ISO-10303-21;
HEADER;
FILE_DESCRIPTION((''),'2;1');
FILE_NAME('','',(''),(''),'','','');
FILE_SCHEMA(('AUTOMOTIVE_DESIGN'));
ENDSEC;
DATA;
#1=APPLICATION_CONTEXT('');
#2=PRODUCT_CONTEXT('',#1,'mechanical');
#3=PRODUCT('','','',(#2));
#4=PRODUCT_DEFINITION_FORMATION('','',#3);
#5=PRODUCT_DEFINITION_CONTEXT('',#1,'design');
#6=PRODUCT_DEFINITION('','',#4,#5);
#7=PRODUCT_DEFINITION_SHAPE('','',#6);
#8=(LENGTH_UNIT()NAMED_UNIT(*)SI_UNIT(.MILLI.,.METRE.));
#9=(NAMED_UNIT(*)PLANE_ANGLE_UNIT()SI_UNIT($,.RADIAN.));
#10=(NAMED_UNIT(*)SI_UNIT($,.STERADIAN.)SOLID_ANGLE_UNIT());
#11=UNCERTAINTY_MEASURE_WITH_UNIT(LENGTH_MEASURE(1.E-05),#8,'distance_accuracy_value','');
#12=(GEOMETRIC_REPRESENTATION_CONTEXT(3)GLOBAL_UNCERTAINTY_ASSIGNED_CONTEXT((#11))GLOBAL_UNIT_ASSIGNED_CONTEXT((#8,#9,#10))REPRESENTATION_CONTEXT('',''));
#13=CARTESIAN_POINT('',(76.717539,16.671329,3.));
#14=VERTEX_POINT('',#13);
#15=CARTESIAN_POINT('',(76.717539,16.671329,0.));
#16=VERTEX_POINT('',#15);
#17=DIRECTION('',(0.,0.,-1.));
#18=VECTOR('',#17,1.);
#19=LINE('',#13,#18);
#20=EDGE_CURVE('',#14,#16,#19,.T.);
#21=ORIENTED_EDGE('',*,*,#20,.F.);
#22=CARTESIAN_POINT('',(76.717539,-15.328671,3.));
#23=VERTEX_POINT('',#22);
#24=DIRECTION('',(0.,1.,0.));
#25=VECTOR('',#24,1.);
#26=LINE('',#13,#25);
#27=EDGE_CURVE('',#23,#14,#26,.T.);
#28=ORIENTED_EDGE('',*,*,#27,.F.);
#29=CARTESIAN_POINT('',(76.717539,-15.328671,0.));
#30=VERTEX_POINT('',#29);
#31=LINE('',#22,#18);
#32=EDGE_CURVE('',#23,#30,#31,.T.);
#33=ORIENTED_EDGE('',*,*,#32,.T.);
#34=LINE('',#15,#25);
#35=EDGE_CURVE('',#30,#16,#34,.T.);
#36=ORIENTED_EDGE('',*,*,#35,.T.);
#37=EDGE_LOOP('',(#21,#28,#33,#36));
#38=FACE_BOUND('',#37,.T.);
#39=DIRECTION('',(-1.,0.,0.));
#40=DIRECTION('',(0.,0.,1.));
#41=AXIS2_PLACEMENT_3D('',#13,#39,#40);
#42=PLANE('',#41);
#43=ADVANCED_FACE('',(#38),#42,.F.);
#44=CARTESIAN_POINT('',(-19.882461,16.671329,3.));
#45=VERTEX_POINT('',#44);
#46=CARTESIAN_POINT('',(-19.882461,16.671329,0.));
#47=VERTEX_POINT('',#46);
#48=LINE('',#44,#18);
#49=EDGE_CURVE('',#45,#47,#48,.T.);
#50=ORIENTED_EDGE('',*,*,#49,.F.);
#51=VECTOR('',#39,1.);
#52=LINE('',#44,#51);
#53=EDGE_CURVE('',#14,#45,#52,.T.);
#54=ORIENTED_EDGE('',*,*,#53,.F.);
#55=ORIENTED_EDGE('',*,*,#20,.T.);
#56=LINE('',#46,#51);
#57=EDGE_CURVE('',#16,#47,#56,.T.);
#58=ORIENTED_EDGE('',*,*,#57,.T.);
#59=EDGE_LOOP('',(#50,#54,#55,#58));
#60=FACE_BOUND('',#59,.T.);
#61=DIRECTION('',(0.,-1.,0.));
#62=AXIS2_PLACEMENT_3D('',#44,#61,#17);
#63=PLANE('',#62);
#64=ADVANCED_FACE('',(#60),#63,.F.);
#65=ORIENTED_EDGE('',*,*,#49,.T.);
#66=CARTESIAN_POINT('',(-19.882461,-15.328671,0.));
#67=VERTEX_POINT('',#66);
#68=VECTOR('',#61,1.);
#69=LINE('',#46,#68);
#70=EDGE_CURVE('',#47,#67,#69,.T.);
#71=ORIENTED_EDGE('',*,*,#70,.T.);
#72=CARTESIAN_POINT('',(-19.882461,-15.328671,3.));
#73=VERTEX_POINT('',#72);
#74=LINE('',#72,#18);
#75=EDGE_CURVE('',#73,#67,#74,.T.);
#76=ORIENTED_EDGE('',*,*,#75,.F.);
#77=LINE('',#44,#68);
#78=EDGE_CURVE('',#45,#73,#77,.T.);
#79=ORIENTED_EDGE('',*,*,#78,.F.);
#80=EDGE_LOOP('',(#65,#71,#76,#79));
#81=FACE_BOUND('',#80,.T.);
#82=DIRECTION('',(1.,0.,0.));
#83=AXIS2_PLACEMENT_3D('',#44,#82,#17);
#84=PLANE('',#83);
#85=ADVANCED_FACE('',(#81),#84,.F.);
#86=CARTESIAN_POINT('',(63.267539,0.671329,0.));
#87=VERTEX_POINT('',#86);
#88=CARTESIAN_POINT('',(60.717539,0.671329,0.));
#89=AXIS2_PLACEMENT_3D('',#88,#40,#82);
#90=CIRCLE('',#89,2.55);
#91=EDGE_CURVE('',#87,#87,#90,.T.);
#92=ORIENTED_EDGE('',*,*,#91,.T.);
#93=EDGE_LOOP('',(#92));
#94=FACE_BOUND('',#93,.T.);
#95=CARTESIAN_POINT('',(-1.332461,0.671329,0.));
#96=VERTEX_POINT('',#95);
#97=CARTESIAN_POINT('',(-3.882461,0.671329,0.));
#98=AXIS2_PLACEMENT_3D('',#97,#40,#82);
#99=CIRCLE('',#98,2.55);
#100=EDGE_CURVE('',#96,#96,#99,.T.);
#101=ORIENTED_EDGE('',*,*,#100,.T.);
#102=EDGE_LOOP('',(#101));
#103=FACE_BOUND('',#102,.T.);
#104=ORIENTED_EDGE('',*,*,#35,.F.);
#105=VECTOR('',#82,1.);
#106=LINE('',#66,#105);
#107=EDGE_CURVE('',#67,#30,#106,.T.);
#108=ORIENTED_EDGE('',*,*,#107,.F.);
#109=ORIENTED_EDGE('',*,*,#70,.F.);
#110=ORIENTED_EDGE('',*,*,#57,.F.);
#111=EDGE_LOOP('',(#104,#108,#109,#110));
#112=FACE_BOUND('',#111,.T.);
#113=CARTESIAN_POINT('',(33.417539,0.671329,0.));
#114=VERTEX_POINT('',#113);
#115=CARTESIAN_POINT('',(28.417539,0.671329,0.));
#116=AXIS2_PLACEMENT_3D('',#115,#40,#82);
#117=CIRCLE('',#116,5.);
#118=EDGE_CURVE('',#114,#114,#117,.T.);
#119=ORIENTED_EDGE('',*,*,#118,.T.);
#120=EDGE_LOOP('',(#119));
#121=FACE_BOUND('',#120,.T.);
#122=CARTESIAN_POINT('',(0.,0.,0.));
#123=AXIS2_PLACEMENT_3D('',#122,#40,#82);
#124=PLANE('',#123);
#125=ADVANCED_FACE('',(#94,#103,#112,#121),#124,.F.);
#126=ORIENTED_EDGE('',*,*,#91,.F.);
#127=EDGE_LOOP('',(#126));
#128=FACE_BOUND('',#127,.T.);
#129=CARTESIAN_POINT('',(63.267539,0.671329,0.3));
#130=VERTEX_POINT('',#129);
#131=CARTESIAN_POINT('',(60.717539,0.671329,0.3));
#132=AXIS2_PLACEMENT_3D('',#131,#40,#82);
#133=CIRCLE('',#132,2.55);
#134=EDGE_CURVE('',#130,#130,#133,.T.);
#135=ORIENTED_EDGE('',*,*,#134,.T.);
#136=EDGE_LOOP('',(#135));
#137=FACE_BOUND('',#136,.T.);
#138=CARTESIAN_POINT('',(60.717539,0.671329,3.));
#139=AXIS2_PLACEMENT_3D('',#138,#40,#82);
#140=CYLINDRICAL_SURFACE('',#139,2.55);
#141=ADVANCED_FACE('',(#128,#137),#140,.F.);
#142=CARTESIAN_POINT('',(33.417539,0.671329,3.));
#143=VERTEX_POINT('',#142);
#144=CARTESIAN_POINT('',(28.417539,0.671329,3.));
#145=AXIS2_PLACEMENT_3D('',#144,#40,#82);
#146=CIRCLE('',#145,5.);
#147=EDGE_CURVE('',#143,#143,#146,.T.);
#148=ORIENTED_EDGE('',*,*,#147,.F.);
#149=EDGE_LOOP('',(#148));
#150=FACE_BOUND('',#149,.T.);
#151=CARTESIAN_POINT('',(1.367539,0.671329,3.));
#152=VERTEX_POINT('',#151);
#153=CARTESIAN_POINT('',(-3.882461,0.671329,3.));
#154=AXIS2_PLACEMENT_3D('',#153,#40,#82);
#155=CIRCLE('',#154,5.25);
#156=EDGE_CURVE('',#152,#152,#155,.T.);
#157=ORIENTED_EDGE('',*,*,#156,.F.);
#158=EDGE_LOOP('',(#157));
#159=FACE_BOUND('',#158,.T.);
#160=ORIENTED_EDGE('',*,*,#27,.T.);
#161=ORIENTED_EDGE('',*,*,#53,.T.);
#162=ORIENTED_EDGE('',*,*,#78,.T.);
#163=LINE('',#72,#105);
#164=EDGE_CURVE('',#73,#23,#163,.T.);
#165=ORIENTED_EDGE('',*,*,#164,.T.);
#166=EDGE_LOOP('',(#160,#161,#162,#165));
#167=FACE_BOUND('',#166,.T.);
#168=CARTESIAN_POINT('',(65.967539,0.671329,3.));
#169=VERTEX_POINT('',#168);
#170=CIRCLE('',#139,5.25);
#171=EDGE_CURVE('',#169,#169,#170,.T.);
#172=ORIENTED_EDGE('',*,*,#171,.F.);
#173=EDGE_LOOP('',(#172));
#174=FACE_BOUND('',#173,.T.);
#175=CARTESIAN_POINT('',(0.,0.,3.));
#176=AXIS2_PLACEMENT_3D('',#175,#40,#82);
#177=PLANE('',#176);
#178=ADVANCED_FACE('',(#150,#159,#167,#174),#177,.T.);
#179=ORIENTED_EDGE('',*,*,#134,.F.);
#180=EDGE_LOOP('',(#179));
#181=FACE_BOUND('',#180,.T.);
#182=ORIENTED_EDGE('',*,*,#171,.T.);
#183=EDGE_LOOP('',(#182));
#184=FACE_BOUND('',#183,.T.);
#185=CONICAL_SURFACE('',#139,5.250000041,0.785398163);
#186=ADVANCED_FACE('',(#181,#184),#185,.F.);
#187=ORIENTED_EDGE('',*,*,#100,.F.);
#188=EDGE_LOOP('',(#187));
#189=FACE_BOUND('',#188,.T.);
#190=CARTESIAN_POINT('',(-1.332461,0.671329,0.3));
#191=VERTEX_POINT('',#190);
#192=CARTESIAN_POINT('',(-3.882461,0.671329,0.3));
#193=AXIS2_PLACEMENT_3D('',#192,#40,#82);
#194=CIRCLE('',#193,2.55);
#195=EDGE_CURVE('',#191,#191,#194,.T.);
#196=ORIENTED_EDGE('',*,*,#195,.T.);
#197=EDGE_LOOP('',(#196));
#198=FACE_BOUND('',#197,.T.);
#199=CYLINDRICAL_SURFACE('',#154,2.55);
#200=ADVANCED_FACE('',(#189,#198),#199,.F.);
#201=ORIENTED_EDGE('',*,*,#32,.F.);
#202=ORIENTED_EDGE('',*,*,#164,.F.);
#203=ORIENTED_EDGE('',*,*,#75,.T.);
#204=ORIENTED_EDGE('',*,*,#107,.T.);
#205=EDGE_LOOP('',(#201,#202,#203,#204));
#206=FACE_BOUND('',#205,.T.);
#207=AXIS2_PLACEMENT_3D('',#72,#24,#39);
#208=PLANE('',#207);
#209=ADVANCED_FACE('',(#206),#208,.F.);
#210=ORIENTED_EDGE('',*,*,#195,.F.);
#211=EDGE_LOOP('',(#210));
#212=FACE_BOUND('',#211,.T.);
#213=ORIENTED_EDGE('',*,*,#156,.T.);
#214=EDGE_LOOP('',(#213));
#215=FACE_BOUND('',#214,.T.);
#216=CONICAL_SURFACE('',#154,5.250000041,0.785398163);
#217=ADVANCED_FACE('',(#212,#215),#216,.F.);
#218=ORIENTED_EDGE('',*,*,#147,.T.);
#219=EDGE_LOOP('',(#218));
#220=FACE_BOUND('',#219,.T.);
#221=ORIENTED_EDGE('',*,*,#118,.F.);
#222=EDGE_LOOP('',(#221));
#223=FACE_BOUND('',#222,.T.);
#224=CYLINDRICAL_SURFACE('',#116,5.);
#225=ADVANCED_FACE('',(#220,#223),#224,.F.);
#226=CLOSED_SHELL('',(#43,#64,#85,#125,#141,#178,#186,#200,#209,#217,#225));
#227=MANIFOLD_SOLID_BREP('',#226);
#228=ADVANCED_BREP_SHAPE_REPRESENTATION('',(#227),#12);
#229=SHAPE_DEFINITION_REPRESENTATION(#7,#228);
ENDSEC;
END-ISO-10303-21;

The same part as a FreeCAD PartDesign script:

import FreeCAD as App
import Part
import Sketcher
from FreeCAD import Vector
Q = App.Units.Quantity

doc = App.newDocument("Part")
body = doc.addObject("PartDesign::Body", "Body")

# Sketch on XY plane
sketch1 = body.newObject("Sketcher::SketchObject", "Sketch")
sketch1.AttachmentSupport = (doc.getObject("XY_Plane"), [""])
sketch1.MapMode = "FlatFace"
sketch1.addGeometry([
    Part.LineSegment(Vector(-20, 17, 0), Vector(-20, -15, 0)),
    Part.LineSegment(Vector(-20, -15, 0), Vector(77, -15, 0)),
    Part.LineSegment(Vector(77, -15, 0), Vector(77, 17, 0)),
    Part.LineSegment(Vector(77, 17, 0), Vector(-20, 17, 0)),
], False)
sketch1.addConstraint([
    Sketcher.Constraint("Coincident", 0, 2, 1, 1),
    Sketcher.Constraint("Coincident", 1, 2, 2, 1),
    Sketcher.Constraint("Coincident", 2, 2, 3, 1),
    Sketcher.Constraint("Coincident", 3, 2, 0, 1),
    Sketcher.Constraint("Vertical", 0),
    Sketcher.Constraint("Horizontal", 1),
    Sketcher.Constraint("Vertical", 2),
    Sketcher.Constraint("Horizontal", 3),
    Sketcher.Constraint("DistanceY", 0, 2, 0, 1, 32.0),
    Sketcher.Constraint("DistanceX", 1, 1, 1, 2, 96.6),
    Sketcher.Constraint("DistanceX", 0, 2, -1, 1, 19.882461),
    Sketcher.Constraint("DistanceY", 0, 2, -1, 1, 15.328671),
])
pad1 = body.newObject("PartDesign::Pad", "Pad")
pad1.Profile = sketch1
pad1.Length = 3

# Sketch on XY plane
sketch2 = body.newObject("Sketcher::SketchObject", "Sketch001")
sketch2.AttachmentSupport = (doc.getObject("XY_Plane"), [""])
sketch2.MapMode = "FlatFace"
sketch2.AttachmentOffset = App.Placement(Vector(0, 0, 3), App.Rotation())
sketch2.addGeometry(Part.Circle(Vector(28, 1, 0), Vector(0, 0, 1), 5), False)
sketch2.addConstraint([
    Sketcher.Constraint("Diameter", 0, 10.0),
    Sketcher.Constraint("DistanceX", -1, 1, 0, 3, 28.417539),
    Sketcher.Constraint("DistanceY", -1, 1, 0, 3, 0.671329),
])
pocket1 = body.newObject("PartDesign::Pocket", "Pocket")
pocket1.Profile = sketch2
pocket1.Type = "ThroughAll"

# Sketch on YZ plane
sketch3 = body.newObject("Sketcher::SketchObject", "Sketch002")
sketch3.AttachmentSupport = (doc.getObject("YZ_Plane"), [""])
sketch3.MapMode = "FlatFace"
sketch3.AttachmentOffset = App.Placement(Vector(0, 0, -3.882461), App.Rotation())
sketch3.addGeometry([
    Part.LineSegment(Vector(0.67, 0, 0), Vector(0.67, 3, 0)),  # 0
    Part.LineSegment(Vector(0.67, 3, 0), Vector(-4.58, 3, 0)),  # 1
    Part.LineSegment(Vector(-4.58, 3, 0), Vector(-1.88, 0.3, 0)),  # 2
    Part.LineSegment(Vector(-1.88, 0.3, 0), Vector(-1.88, 0, 0)),  # 3
    Part.LineSegment(Vector(-1.88, 0, 0), Vector(0.67, 0, 0)),  # 4
], False)
sketch3.addGeometry(Part.LineSegment(Vector(0.67, 3, 0), Vector(0.67, 0, 0)), True)  # axis
sketch3.addConstraint([
    Sketcher.Constraint("Coincident", 0, 2, 1, 1),
    Sketcher.Constraint("Coincident", 1, 2, 2, 1),
    Sketcher.Constraint("Coincident", 2, 2, 3, 1),
    Sketcher.Constraint("Coincident", 3, 2, 4, 1),
    Sketcher.Constraint("Coincident", 4, 2, 0, 1),
    Sketcher.Constraint("Vertical", 0),
    Sketcher.Constraint("Horizontal", 1),
    Sketcher.Constraint("Vertical", 3),
    Sketcher.Constraint("Horizontal", 4),
    Sketcher.Constraint("Vertical", 5),
    Sketcher.Constraint("Coincident", 5, 1, 0, 2),
    Sketcher.Constraint("PointOnObject", 3, 2, -1),
    Sketcher.Constraint("PointOnObject", 5, 2, -1),
    Sketcher.Constraint("DistanceY", 0, 1, 0, 2, 3.0),
    Sketcher.Constraint("Angle", 2, Q("-45 deg")),
    Sketcher.Constraint("DistanceY", 3, 2, 3, 1, 0.3),
    Sketcher.Constraint("DistanceX", 1, 2, 1, 1, 5.25),
    Sketcher.Constraint("DistanceX", -1, 1, 0, 2, 0.671329),
])
groove = body.newObject("PartDesign::Groove", "Groove")
groove.Profile = sketch3
groove.ReferenceAxis = (sketch3, ["Axis0"])
groove.Angle = 360
doc.recompute()

linearpattern = body.newObject("PartDesign::LinearPattern", "LinearPattern")
linearpattern.Originals = [groove]
linearpattern.Direction = (doc.getObject("X_Axis"), [""])
linearpattern.Mode = "offset"
linearpattern.Offset = 64.6
linearpattern.Occurrences = 2
body.Tip = linearpattern

doc.recompute()
